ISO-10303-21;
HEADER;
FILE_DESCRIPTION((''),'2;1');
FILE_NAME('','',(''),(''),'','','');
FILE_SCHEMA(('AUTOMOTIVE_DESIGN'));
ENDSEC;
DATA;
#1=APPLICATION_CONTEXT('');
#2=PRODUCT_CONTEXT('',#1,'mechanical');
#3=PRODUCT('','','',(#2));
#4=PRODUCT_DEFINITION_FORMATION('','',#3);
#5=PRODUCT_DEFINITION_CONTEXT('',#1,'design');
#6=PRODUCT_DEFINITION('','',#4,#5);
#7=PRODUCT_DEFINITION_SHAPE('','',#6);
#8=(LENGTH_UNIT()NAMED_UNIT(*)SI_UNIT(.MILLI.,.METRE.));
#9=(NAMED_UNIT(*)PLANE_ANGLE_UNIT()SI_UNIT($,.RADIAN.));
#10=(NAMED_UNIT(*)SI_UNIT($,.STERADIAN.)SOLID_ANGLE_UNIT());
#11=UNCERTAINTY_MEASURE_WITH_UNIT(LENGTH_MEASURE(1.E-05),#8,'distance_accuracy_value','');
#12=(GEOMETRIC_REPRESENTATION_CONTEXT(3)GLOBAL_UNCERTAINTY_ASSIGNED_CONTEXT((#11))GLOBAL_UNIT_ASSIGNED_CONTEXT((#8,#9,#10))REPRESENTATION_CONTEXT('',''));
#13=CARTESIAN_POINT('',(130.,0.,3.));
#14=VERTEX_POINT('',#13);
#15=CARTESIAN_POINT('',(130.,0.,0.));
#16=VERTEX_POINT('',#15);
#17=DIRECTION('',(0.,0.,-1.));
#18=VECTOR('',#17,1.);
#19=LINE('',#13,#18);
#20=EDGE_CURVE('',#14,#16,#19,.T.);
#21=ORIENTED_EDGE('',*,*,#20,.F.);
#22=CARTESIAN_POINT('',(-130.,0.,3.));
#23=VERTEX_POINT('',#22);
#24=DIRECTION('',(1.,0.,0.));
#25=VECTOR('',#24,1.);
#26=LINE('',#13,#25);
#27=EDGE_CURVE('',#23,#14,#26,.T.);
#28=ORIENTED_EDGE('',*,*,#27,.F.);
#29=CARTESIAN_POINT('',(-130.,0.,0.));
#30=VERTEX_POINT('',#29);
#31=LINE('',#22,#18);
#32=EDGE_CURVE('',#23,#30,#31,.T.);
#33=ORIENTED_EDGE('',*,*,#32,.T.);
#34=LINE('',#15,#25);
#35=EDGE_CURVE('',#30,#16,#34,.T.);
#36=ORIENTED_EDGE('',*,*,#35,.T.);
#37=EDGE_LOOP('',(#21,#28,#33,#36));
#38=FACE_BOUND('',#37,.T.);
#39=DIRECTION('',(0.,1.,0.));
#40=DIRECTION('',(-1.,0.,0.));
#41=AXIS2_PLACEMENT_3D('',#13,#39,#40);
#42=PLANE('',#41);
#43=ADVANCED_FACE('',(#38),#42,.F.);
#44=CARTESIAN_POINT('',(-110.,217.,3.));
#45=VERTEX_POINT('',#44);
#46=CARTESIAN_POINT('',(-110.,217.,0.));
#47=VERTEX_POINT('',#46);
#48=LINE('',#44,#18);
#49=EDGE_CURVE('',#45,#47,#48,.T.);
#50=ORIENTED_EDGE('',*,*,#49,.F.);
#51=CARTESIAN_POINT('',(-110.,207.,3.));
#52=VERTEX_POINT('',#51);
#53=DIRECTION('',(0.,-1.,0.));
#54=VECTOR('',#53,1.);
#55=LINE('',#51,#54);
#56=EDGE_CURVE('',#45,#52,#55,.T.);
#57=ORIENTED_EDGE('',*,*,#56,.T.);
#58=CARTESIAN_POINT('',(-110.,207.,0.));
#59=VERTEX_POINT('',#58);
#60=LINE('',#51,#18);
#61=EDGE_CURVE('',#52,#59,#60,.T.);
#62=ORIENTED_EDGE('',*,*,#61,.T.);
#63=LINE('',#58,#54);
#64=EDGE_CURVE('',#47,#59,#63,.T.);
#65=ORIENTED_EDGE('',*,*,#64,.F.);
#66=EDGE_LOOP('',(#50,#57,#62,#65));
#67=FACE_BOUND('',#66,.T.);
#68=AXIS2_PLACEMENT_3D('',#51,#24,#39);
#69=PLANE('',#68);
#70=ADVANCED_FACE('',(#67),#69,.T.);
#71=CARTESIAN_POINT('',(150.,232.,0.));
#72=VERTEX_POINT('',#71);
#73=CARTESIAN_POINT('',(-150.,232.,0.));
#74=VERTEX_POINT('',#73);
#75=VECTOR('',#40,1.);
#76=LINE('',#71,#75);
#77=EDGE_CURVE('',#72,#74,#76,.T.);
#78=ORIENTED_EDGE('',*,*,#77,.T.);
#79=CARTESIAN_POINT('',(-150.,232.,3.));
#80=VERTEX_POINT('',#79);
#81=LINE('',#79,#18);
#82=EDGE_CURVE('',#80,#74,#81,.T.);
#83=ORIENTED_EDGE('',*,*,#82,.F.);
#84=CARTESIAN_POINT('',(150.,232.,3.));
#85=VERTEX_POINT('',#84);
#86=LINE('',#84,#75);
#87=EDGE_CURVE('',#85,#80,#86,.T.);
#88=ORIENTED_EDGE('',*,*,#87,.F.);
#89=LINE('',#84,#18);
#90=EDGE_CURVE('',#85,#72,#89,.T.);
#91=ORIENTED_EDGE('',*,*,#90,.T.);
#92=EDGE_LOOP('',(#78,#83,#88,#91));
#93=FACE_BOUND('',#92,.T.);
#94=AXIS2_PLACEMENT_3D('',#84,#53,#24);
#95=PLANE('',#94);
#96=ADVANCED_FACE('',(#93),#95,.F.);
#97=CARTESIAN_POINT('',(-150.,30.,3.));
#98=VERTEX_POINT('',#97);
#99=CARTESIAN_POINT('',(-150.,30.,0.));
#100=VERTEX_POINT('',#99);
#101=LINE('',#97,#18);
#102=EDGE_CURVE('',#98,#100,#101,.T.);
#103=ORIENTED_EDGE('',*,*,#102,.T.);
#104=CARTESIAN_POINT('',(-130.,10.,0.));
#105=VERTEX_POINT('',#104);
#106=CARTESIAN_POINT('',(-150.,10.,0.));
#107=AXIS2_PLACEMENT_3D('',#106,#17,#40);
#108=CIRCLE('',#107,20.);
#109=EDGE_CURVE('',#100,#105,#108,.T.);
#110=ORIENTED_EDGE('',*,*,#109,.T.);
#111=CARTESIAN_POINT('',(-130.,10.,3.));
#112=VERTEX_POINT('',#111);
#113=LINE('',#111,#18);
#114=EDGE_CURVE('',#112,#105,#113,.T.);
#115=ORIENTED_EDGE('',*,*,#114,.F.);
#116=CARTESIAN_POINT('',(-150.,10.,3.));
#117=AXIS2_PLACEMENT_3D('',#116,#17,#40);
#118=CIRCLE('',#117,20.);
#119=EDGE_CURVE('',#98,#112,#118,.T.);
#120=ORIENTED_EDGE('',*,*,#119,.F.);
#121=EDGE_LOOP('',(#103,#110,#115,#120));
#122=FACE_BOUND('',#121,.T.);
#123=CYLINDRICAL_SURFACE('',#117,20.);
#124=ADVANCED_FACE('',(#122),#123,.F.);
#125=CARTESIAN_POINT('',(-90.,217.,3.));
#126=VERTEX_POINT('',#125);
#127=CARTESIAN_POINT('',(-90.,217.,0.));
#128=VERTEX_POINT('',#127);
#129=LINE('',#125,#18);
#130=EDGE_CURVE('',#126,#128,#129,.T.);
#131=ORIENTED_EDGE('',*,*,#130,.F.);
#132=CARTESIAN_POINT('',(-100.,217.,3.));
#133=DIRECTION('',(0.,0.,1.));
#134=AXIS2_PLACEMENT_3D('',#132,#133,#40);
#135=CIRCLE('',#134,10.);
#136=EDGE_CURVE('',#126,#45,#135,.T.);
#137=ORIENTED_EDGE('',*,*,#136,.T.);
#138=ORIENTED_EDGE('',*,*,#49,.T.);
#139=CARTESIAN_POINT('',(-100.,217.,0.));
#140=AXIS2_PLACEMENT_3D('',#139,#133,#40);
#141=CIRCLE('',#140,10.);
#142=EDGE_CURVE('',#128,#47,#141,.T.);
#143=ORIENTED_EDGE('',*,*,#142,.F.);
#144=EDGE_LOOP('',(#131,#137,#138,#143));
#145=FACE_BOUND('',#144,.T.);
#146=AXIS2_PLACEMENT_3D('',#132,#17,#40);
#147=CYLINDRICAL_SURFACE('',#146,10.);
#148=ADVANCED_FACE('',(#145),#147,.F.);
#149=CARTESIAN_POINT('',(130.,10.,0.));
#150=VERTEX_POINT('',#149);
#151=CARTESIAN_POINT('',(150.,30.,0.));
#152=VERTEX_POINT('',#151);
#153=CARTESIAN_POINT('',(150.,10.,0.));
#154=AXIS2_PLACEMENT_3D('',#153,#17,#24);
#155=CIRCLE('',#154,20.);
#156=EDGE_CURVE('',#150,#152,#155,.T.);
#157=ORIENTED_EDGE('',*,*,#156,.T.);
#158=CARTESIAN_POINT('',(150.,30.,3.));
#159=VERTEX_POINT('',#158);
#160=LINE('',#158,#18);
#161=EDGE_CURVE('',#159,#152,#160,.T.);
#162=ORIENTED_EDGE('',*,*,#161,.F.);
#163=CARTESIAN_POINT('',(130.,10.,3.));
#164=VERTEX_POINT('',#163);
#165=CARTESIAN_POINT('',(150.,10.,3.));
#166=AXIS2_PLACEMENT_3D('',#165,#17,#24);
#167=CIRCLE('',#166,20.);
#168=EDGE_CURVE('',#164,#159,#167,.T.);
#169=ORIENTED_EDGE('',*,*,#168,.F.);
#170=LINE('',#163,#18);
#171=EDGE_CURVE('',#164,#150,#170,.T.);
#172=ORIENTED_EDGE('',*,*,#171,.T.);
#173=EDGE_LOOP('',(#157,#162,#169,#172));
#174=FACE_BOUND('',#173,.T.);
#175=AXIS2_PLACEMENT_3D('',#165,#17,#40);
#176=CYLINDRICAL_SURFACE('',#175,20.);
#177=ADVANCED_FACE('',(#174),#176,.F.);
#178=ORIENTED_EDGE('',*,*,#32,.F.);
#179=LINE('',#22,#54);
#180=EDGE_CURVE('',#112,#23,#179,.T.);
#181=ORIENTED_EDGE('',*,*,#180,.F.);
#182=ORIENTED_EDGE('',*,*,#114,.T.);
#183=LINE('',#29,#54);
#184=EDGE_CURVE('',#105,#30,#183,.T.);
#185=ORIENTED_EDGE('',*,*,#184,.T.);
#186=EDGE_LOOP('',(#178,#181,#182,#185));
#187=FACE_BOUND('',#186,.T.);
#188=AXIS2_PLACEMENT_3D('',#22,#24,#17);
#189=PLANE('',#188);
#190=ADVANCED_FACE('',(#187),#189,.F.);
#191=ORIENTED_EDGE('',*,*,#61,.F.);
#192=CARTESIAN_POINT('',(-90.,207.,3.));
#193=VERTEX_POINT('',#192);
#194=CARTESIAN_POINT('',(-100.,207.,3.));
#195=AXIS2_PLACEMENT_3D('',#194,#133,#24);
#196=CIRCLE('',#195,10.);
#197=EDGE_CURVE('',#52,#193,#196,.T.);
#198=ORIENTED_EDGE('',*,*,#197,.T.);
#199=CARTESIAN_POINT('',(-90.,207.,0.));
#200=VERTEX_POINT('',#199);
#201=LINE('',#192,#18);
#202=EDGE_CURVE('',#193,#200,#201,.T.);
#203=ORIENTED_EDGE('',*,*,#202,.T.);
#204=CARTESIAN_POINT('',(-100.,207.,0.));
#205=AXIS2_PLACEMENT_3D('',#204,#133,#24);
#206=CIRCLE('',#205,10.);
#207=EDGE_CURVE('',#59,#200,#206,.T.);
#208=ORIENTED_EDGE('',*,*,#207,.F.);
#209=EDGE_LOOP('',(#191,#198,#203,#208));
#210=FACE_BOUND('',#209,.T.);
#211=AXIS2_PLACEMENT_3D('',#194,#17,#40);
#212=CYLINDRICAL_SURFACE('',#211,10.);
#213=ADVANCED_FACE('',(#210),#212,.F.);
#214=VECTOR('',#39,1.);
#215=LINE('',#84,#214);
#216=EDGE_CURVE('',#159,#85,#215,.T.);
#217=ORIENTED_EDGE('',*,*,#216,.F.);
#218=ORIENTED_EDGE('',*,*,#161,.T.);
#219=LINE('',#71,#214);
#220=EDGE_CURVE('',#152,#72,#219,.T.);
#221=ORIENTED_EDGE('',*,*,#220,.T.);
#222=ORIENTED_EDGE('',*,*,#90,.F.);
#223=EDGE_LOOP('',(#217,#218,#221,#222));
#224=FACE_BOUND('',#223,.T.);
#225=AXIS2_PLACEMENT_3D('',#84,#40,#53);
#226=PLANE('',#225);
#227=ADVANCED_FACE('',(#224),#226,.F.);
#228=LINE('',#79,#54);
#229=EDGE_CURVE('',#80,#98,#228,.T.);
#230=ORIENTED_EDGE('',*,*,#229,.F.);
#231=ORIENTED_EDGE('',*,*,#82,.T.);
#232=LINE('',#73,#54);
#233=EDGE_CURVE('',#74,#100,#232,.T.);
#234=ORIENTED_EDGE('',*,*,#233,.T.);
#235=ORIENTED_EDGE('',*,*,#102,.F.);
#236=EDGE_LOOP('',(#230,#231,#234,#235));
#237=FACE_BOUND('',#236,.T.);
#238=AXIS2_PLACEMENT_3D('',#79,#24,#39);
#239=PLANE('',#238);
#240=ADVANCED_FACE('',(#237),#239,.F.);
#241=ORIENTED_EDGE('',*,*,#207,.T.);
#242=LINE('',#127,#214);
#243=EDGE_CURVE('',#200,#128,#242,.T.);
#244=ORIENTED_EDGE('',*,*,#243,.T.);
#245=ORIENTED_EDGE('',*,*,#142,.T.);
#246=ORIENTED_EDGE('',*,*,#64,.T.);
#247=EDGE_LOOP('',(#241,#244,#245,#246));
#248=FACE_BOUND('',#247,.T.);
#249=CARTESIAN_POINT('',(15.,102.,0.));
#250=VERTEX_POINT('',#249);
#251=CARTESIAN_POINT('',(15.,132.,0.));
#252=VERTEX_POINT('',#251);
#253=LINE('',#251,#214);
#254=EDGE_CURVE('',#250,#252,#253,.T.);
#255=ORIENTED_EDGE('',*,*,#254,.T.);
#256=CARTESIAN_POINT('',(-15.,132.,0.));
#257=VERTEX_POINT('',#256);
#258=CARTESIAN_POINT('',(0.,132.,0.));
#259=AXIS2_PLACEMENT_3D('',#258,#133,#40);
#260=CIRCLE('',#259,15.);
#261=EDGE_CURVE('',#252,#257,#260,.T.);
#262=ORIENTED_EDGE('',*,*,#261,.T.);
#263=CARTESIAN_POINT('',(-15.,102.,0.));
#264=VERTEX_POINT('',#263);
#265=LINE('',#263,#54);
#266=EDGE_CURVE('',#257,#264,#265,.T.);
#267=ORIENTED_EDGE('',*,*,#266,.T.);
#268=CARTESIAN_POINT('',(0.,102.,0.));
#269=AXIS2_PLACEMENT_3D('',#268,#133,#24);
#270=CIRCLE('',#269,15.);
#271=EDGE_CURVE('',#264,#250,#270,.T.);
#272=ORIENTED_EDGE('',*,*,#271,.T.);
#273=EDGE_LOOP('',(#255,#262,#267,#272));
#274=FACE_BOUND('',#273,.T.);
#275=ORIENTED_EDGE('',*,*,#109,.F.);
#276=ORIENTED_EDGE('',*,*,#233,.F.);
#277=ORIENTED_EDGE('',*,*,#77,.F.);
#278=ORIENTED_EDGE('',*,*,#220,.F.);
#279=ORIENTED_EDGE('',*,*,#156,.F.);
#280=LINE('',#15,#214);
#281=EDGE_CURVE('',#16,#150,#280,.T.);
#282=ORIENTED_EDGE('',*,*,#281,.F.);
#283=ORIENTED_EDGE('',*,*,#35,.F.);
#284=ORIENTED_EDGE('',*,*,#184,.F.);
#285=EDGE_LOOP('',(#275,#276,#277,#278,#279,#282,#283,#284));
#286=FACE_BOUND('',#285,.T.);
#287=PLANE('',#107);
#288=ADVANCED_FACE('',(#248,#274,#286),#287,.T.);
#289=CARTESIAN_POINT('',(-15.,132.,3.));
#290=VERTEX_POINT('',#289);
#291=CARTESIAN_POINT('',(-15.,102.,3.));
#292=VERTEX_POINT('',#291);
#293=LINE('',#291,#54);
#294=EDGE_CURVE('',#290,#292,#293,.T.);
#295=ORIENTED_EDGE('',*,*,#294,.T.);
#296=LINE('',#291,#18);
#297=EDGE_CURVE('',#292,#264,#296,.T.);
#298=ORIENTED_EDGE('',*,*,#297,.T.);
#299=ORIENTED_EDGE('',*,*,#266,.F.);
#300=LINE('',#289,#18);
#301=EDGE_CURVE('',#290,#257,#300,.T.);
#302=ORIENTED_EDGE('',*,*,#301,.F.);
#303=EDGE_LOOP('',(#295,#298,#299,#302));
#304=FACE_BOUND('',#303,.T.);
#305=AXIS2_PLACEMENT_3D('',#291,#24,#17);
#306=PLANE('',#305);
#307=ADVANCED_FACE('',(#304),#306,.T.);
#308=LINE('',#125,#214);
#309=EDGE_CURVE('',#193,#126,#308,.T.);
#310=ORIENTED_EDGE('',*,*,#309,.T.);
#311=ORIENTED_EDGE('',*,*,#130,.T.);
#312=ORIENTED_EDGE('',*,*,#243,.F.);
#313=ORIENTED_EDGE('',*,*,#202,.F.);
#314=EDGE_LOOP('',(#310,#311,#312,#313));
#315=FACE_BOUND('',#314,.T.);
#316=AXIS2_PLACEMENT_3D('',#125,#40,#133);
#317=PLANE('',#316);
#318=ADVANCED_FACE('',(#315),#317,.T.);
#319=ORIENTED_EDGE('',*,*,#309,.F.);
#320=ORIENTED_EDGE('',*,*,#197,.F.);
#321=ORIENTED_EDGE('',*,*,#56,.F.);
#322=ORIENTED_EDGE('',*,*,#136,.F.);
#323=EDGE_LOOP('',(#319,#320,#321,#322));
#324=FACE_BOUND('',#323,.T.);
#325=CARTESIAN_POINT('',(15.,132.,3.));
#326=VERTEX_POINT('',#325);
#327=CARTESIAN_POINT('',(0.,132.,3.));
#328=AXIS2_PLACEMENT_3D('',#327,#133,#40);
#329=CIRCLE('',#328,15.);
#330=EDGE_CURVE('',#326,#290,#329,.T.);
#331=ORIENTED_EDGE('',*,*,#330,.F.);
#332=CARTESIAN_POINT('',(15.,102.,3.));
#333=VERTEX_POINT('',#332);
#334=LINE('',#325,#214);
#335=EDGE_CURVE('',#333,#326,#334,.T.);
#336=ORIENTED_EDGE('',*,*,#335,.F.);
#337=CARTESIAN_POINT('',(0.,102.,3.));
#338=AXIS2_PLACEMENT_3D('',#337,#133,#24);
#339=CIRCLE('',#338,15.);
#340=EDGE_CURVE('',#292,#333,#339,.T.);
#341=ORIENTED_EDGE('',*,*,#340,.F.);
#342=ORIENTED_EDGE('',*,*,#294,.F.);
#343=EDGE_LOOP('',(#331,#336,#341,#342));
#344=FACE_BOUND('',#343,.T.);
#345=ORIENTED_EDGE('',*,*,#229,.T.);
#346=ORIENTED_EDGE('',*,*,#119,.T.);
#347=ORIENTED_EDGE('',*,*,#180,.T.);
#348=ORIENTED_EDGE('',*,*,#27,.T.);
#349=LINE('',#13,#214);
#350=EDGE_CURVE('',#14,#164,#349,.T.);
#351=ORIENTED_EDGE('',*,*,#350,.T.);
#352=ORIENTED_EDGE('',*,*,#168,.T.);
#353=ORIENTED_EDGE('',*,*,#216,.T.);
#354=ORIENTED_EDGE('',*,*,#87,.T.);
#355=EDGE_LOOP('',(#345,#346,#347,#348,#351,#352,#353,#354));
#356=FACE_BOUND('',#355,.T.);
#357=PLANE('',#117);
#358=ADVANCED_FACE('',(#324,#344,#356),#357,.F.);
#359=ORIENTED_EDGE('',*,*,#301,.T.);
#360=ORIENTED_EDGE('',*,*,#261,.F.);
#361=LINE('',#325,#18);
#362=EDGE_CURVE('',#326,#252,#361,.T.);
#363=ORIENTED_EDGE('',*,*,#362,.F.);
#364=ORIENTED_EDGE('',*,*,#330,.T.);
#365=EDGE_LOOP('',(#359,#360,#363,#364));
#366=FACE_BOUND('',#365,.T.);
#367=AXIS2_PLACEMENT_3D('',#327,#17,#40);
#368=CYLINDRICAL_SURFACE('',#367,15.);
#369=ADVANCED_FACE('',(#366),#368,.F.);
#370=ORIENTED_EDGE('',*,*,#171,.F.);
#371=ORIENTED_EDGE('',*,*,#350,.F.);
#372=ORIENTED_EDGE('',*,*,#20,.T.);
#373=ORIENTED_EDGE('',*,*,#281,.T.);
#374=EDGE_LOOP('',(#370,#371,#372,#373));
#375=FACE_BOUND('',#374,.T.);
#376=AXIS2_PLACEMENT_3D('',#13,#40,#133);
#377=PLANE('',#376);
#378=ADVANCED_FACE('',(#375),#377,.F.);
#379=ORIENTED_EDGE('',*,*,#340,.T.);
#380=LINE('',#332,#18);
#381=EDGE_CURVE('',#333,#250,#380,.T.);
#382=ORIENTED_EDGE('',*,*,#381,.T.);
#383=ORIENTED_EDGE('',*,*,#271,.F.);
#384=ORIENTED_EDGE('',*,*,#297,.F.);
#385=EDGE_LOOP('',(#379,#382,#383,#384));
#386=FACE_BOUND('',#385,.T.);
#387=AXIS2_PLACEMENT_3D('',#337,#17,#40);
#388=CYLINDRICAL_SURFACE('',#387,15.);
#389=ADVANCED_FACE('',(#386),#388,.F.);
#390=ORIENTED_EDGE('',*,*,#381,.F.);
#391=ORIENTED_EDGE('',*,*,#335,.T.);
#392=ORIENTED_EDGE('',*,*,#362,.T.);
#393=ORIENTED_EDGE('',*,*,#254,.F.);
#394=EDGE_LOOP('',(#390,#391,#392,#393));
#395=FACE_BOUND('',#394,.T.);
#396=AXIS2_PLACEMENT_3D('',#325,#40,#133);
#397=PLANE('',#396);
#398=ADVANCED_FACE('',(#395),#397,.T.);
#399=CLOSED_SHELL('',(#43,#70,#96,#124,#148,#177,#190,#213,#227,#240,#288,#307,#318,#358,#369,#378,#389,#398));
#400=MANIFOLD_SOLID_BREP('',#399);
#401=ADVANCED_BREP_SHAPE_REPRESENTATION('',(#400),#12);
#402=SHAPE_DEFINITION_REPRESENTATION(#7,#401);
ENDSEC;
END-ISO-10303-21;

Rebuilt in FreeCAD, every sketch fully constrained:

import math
import FreeCAD as App
import Part
import Sketcher

V = App.Vector
Q = App.Units.Quantity

doc = App.newDocument("Part")
body = doc.addObject("PartDesign::Body", "Body")

sketch1 = body.newObject("Sketcher::SketchObject", "Sketch")
sketch1.AttachmentSupport = (doc.getObject("XY_Plane"), [""])
sketch1.MapMode = "FlatFace"
sketch1.addGeometry([
    Part.LineSegment(V(150, 232, 0), V(-150, 232, 0)),
    Part.LineSegment(V(-150, 232, 0), V(-150, 30, 0)),
    Part.ArcOfCircle(Part.Circle(V(-150, 10, 0), V(0, 0, 1), 20), math.radians(0), math.radians(90)),
    Part.LineSegment(V(-130, 10, 0), V(-130, 0, 0)),
    Part.LineSegment(V(-130, 0, 0), V(130, 0, 0)),
    Part.LineSegment(V(130, 0, 0), V(130, 10, 0)),
    Part.ArcOfCircle(Part.Circle(V(150, 10, 0), V(0, 0, 1), 20), math.radians(90), math.radians(180)),
    Part.LineSegment(V(150, 30, 0), V(150, 232, 0)),
    Part.ArcOfCircle(Part.Circle(V(0, 102, 0), V(0, 0, 1), 15), math.radians(180), math.radians(360)),
    Part.LineSegment(V(-15, 102, 0), V(-15, 132, 0)),
    Part.ArcOfCircle(Part.Circle(V(0, 132, 0), V(0, 0, 1), 15), math.radians(0), math.radians(180)),
    Part.LineSegment(V(15, 132, 0), V(15, 102, 0)),
    Part.ArcOfCircle(Part.Circle(V(-100, 207, 0), V(0, 0, 1), 10), math.radians(180), math.radians(360)),
    Part.LineSegment(V(-110, 207, 0), V(-110, 217, 0)),
    Part.ArcOfCircle(Part.Circle(V(-100, 217, 0), V(0, 0, 1), 10), math.radians(0), math.radians(180)),
    Part.LineSegment(V(-90, 217, 0), V(-90, 207, 0)),
], False)
sketch1.addConstraint([
    Sketcher.Constraint("Coincident", 0, 2, 1, 1),
    Sketcher.Constraint("Coincident", 1, 2, 2, 2),
    Sketcher.Constraint("Tangent", 2, 1, 3, 1),
    Sketcher.Constraint("Coincident", 3, 2, 4, 1),
    Sketcher.Constraint("Coincident", 4, 2, 5, 1),
    Sketcher.Constraint("Tangent", 5, 2, 6, 2),
    Sketcher.Constraint("Coincident", 6, 1, 7, 1),
    Sketcher.Constraint("Coincident", 7, 2, 0, 1),
    Sketcher.Constraint("Tangent", 8, 1, 9, 1),
    Sketcher.Constraint("Tangent", 9, 2, 10, 2),
    Sketcher.Constraint("Tangent", 10, 1, 11, 1),
    Sketcher.Constraint("Tangent", 11, 2, 8, 2),
    Sketcher.Constraint("Tangent", 12, 1, 13, 1),
    Sketcher.Constraint("Tangent", 13, 2, 14, 2),
    Sketcher.Constraint("Tangent", 14, 1, 15, 1),
    Sketcher.Constraint("Tangent", 15, 2, 12, 2),
    Sketcher.Constraint("Horizontal", 0),
    Sketcher.Constraint("Vertical", 1),
    Sketcher.Constraint("Vertical", 3),
    Sketcher.Constraint("Horizontal", 4),
    Sketcher.Constraint("Vertical", 5),
    Sketcher.Constraint("Vertical", 7),
    Sketcher.Constraint("Vertical", 9),
    Sketcher.Constraint("Vertical", 11),
    Sketcher.Constraint("Vertical", 13),
    Sketcher.Constraint("Vertical", 15),
    Sketcher.Constraint("Equal", 2, 6),
    Sketcher.Constraint("Symmetric", 3, 2, 4, 2, -1, 1),
    Sketcher.Constraint("Symmetric", 1, 2, 6, 1, -2),
    Sketcher.Constraint("PointOnObject", 8, 3, -2),
    Sketcher.Constraint("Vertical", 2, 3, 0, 2),
    Sketcher.Constraint("Equal", 5, 13),
    Sketcher.Constraint("Radius", 2, Q("20 mm")),
    Sketcher.Constraint("Radius", 8, Q("15 mm")),
    Sketcher.Constraint("Radius", 12, Q("10 mm")),
    Sketcher.Constraint("DistanceX", 0, 2, 0, 1, Q("300 mm")),
    Sketcher.Constraint("DistanceY", 1, 2, 1, 1, Q("202 mm")),
    Sketcher.Constraint("DistanceY", 3, 2, 3, 1, Q("10 mm")),
    Sketcher.Constraint("DistanceY", 9, 1, 9, 2, Q("30 mm")),
    Sketcher.Constraint("DistanceY", -1, 1, 8, 3, Q("102 mm")),
    Sketcher.Constraint("DistanceX", 12, 3, -1, 1, Q("100 mm")),
    Sketcher.Constraint("DistanceY", -1, 1, 12, 3, Q("207 mm")),
])
pad1 = body.newObject("PartDesign::Pad", "Pad")
pad1.Profile = sketch1
pad1.Length = 3

doc.recompute()
